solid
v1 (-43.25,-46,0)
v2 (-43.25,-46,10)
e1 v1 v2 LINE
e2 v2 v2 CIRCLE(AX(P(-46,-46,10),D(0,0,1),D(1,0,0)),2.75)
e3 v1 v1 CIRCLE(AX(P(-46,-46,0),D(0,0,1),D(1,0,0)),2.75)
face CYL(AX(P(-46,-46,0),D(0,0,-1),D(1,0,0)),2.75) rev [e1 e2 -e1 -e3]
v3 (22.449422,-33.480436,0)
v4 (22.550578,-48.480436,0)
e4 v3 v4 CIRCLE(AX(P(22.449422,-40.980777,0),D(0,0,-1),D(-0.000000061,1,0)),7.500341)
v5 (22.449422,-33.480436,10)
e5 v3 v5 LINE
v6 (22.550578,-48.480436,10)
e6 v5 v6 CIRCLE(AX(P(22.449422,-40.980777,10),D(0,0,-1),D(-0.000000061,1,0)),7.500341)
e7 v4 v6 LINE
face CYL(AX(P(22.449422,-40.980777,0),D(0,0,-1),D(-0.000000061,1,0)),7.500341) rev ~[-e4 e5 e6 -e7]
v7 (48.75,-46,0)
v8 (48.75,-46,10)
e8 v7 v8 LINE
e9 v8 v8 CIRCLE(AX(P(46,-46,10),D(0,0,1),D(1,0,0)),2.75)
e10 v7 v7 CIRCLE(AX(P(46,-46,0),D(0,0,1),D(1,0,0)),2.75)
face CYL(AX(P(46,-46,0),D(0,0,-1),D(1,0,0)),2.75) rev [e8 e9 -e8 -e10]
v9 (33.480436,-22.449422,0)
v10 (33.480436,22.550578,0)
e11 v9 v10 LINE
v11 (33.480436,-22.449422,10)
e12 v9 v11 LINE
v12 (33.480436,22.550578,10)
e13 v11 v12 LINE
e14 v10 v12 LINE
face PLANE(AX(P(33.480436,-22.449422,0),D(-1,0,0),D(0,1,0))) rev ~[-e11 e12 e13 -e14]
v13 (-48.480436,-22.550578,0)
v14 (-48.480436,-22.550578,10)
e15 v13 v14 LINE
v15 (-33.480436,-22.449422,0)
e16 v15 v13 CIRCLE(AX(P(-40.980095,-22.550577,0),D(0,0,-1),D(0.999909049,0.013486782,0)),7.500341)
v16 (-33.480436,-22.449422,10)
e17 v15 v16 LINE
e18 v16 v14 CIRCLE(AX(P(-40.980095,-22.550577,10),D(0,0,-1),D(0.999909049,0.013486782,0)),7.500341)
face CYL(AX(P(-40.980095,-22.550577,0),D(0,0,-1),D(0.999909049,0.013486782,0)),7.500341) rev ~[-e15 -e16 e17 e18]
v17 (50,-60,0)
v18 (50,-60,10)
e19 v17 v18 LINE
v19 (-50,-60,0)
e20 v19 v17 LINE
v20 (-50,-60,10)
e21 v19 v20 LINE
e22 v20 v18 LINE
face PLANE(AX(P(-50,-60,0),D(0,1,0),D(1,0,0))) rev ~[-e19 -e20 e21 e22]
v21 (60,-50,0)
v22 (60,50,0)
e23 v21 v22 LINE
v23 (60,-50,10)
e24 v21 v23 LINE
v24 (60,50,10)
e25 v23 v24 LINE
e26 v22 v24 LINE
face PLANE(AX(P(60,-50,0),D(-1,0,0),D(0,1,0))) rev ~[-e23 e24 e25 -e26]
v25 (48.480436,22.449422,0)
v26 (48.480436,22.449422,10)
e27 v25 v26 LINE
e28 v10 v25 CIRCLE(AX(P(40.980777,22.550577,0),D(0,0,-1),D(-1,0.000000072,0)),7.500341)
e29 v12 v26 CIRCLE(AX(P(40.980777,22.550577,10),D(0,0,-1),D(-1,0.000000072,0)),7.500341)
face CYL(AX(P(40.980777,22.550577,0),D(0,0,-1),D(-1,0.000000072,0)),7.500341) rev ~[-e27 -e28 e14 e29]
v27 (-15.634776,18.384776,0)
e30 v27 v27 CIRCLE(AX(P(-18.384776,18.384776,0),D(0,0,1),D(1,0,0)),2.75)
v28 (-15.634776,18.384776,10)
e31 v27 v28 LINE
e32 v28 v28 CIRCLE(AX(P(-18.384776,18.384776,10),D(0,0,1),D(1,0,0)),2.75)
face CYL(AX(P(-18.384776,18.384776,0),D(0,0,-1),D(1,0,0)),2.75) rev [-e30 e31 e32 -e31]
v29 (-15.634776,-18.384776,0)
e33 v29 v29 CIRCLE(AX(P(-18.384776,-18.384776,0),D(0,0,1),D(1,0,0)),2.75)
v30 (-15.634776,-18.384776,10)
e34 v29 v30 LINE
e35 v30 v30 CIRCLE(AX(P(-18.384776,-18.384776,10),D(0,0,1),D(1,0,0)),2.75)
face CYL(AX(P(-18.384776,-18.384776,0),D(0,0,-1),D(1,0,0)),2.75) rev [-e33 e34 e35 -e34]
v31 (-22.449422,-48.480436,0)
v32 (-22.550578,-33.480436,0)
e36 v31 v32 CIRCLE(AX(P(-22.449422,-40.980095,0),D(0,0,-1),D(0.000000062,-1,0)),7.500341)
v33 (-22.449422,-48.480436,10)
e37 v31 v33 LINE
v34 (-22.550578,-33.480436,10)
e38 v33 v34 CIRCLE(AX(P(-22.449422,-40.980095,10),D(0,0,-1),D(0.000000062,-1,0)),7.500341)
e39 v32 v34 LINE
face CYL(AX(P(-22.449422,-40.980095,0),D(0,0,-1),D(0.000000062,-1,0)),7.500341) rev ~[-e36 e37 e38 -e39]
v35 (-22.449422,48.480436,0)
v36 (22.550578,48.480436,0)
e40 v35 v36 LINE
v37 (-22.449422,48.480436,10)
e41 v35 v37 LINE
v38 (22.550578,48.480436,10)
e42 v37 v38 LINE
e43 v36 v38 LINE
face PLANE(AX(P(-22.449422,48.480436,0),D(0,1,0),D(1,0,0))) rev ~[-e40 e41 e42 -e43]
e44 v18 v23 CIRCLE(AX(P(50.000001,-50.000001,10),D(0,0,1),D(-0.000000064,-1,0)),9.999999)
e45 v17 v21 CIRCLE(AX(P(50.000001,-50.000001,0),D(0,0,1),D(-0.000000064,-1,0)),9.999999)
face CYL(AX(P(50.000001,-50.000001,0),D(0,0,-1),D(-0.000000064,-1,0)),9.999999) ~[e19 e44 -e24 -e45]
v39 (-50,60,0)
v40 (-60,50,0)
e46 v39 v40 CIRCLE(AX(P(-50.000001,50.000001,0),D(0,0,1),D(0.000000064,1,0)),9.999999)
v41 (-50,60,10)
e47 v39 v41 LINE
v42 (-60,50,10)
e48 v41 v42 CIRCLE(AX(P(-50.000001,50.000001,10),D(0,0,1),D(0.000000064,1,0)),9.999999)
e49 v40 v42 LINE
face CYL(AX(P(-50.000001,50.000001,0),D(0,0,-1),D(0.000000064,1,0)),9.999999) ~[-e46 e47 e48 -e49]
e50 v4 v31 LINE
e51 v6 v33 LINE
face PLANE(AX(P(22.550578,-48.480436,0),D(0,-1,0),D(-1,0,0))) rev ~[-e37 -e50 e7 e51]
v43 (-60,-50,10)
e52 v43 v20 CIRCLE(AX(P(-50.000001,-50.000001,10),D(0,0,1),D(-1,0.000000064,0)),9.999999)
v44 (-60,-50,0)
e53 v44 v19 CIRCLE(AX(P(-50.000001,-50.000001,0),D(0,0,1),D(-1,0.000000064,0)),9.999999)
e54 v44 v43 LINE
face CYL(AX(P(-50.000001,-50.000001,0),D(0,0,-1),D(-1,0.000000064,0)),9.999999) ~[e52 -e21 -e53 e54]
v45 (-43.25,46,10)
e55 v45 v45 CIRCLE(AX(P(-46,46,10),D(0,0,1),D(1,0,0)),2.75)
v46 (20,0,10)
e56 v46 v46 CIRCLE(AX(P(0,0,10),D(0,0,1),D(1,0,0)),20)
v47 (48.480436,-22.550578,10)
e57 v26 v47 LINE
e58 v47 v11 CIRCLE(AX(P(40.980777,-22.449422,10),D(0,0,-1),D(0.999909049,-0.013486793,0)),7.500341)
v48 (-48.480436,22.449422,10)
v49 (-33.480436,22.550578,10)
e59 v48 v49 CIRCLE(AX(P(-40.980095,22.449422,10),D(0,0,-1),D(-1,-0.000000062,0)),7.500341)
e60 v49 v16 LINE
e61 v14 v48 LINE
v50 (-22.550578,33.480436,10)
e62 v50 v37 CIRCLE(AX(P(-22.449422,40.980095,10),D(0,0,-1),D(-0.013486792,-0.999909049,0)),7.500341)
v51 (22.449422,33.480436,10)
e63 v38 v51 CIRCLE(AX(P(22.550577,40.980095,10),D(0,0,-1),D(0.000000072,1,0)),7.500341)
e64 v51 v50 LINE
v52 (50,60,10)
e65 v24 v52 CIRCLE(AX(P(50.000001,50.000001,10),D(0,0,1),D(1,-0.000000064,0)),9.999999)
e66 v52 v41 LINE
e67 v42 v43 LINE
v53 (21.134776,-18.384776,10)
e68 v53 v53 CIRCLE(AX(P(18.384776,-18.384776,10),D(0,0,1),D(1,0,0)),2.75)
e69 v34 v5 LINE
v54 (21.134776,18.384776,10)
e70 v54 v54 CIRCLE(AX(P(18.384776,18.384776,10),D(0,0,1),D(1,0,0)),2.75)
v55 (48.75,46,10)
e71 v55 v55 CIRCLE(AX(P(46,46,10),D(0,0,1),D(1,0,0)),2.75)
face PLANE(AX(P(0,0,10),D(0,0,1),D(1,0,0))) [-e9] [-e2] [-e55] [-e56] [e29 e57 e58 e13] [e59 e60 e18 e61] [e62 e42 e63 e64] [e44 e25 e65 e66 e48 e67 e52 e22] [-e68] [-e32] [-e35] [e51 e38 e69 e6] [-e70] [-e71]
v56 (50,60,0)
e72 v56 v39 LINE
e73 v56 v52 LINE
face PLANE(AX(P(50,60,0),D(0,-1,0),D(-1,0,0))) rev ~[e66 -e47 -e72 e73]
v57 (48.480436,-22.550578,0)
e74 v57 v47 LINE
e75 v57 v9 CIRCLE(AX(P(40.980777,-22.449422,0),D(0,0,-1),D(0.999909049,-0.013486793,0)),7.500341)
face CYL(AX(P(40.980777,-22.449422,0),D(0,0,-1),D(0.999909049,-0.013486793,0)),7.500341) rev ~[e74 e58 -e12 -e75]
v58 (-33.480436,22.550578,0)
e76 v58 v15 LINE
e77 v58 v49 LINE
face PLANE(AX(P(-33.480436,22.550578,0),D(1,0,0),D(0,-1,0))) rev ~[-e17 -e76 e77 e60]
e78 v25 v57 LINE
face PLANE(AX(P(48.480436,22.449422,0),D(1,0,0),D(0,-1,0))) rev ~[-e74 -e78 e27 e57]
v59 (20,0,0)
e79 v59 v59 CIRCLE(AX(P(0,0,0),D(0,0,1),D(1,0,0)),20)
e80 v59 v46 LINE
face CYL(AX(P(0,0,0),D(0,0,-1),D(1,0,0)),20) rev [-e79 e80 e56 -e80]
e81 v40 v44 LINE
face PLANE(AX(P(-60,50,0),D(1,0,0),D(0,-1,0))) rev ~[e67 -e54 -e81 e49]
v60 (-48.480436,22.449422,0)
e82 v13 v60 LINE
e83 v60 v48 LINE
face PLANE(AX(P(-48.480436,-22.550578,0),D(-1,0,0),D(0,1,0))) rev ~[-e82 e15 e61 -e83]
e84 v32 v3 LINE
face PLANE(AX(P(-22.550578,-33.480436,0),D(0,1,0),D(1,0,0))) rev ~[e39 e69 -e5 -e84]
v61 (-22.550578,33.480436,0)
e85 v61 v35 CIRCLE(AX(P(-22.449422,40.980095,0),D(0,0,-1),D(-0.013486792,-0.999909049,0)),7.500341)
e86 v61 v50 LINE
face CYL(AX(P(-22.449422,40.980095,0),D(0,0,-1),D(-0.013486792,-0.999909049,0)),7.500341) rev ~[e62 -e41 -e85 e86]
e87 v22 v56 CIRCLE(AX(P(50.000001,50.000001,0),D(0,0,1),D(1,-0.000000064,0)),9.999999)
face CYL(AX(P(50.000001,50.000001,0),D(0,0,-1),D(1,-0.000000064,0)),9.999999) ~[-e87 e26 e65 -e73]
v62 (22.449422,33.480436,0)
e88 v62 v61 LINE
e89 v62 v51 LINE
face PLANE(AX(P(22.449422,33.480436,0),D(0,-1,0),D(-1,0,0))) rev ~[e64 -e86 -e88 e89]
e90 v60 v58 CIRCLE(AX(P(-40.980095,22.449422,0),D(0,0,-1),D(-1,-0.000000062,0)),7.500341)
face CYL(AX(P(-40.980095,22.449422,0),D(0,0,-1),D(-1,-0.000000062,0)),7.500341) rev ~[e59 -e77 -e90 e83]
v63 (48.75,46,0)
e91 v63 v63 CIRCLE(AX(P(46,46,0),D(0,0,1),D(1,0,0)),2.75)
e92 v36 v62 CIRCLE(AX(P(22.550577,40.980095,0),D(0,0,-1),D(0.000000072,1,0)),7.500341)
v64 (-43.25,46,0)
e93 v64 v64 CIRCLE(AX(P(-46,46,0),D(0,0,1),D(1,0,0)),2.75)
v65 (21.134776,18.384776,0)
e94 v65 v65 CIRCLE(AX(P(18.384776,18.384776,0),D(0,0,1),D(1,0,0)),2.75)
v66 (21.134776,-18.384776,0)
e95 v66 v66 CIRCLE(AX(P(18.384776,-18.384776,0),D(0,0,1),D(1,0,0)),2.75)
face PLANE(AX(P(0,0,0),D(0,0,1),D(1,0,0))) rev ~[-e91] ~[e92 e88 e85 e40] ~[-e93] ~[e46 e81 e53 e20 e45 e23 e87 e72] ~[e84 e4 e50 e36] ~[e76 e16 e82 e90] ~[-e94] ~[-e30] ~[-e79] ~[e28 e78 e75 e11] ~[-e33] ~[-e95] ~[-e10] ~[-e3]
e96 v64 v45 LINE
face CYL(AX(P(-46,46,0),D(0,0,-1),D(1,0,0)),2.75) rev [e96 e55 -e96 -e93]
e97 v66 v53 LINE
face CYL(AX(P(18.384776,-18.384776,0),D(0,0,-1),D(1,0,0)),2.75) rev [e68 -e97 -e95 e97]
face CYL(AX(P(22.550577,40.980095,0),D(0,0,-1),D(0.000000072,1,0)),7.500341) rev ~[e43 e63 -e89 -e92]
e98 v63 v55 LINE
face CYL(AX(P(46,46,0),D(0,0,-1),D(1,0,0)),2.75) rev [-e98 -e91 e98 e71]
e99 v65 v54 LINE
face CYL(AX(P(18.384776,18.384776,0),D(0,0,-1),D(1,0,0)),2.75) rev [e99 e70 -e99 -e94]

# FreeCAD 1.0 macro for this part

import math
import FreeCAD as App
import Part
import Sketcher

V = App.Vector

doc = App.newDocument("Part")
body = doc.addObject("PartDesign::Body", "Body")

# Sketch on XY plane
sketch1 = doc.addObject("Sketcher::SketchObject", "Sketch")
body.addObject(sketch1)
sketch1.AttachmentSupport = (doc.XY_Plane, [""])
sketch1.MapMode = "FlatFace"
sketch1.addGeometry([
    Part.LineSegment(V(-50, -60, 0), V(50, -60, 0)),  # 0
    Part.ArcOfCircle(Part.Circle(V(50, -50, 0), V(0, 0, 1), 10), math.radians(-90), math.radians(0)),  # 1
    Part.LineSegment(V(60, -50, 0), V(60, 50, 0)),  # 2
    Part.ArcOfCircle(Part.Circle(V(50, 50, 0), V(0, 0, 1), 10), math.radians(0), math.radians(90)),  # 3
    Part.LineSegment(V(50, 60, 0), V(-50, 60, 0)),  # 4
    Part.ArcOfCircle(Part.Circle(V(-50, 50, 0), V(0, 0, 1), 10), math.radians(90), math.radians(180)),  # 5
    Part.LineSegment(V(-60, 50, 0), V(-60, -50, 0)),  # 6
    Part.ArcOfCircle(Part.Circle(V(-50, -50, 0), V(0, 0, 1), 10), math.radians(180), math.radians(270)),  # 7
    Part.Circle(V(-46, -46, 0), V(0, 0, 1), 2.8),  # 8
    Part.ArcOfCircle(Part.Circle(V(-22.4, -41, 0), V(0, 0, 1), 7.5), math.radians(91), math.radians(270)),  # 9
    Part.LineSegment(V(-22.6, -33.5, 0), V(22.4, -33.5, 0)),  # 10
    Part.ArcOfCircle(Part.Circle(V(22.4, -41, 0), V(0, 0, 1), 7.5), math.radians(-89), math.radians(90)),  # 11
    Part.LineSegment(V(22.6, -48.5, 0), V(-22.4, -48.5, 0)),  # 12
    Part.ArcOfCircle(Part.Circle(V(-41, 22.4, 0), V(0, 0, 1), 7.5), math.radians(1), math.radians(180)),  # 13
    Part.LineSegment(V(-33.5, 22.6, 0), V(-33.5, -22.4, 0)),  # 14
    Part.ArcOfCircle(Part.Circle(V(-41, -22.6, 0), V(0, 0, 1), 7.5), math.radians(-180), math.radians(1)),  # 15
    Part.LineSegment(V(-48.5, -22.6, 0), V(-48.5, 22.4, 0)),  # 16
    Part.Circle(V(-18.4, -18.4, 0), V(0, 0, 1), 2.8),  # 17
    Part.Circle(V(46, -46, 0), V(0, 0, 1), 2.8),  # 18
    Part.Circle(V(18.4, -18.4, 0), V(0, 0, 1), 2.8),  # 19
    Part.Circle(V(-18.4, 18.4, 0), V(0, 0, 1), 2.8),  # 20
    Part.Circle(V(-46, 46, 0), V(0, 0, 1), 2.8),  # 21
    Part.Circle(V(0, 0, 0), V(0, 0, 1), 20),  # 22
    Part.Circle(V(18.4, 18.4, 0), V(0, 0, 1), 2.8),  # 23
    Part.ArcOfCircle(Part.Circle(V(41, 22.6, 0), V(0, 0, 1), 7.5), math.radians(-1), math.radians(180)),  # 24
    Part.LineSegment(V(48.5, 22.4, 0), V(48.5, -22.6, 0)),  # 25
    Part.ArcOfCircle(Part.Circle(V(41, -22.4, 0), V(0, 0, 1), 7.5), math.radians(180), math.radians(359)),  # 26
    Part.LineSegment(V(33.5, -22.4, 0), V(33.5, 22.6, 0)),  # 27
    Part.LineSegment(V(-22.4, 48.5, 0), V(22.6, 48.5, 0)),  # 28
    Part.ArcOfCircle(Part.Circle(V(22.6, 41, 0), V(0, 0, 1), 7.5), math.radians(-91), math.radians(90)),  # 29
    Part.LineSegment(V(22.4, 33.5, 0), V(-22.6, 33.5, 0)),  # 30
    Part.ArcOfCircle(Part.Circle(V(-22.4, 41, 0), V(0, 0, 1), 7.5), math.radians(90), math.radians(269)),  # 31
    Part.Circle(V(46, 46, 0), V(0, 0, 1), 2.8),  # 32
], False)
sketch1.addConstraint([
    Sketcher.Constraint("Tangent", 0, 2, 1, 1),
    Sketcher.Constraint("Tangent", 1, 2, 2, 1),
    Sketcher.Constraint("Tangent", 2, 2, 3, 1),
    Sketcher.Constraint("Tangent", 3, 2, 4, 1),
    Sketcher.Constraint("Tangent", 4, 2, 5, 1),
    Sketcher.Constraint("Tangent", 5, 2, 6, 1),
    Sketcher.Constraint("Tangent", 6, 2, 7, 1),
    Sketcher.Constraint("Tangent", 7, 2, 0, 1),
    Sketcher.Constraint("Coincident", 9, 1, 10, 1),
    Sketcher.Constraint("Tangent", 10, 2, 11, 2),
    Sketcher.Constraint("Coincident", 11, 1, 12, 1),
    Sketcher.Constraint("Tangent", 12, 2, 9, 2),
    Sketcher.Constraint("Coincident", 13, 1, 14, 1),
    Sketcher.Constraint("Coincident", 14, 2, 15, 2),
    Sketcher.Constraint("Tangent", 15, 1, 16, 1),
    Sketcher.Constraint("Tangent", 16, 2, 13, 2),
    Sketcher.Constraint("Coincident", 24, 1, 25, 1),
    Sketcher.Constraint("Coincident", 25, 2, 26, 2),
    Sketcher.Constraint("Tangent", 26, 1, 27, 1),
    Sketcher.Constraint("Tangent", 27, 2, 24, 2),
    Sketcher.Constraint("Tangent", 28, 2, 29, 2),
    Sketcher.Constraint("Coincident", 29, 1, 30, 1),
    Sketcher.Constraint("Coincident", 30, 2, 31, 2),
    Sketcher.Constraint("Tangent", 31, 1, 28, 1),
    Sketcher.Constraint("Horizontal", 0),
    Sketcher.Constraint("Vertical", 2),
    Sketcher.Constraint("Horizontal", 4),
    Sketcher.Constraint("Vertical", 6),
    Sketcher.Constraint("Horizontal", 10),
    Sketcher.Constraint("Horizontal", 12),
    Sketcher.Constraint("Vertical", 14),
    Sketcher.Constraint("Vertical", 16),
    Sketcher.Constraint("Vertical", 25),
    Sketcher.Constraint("Vertical", 27),
    Sketcher.Constraint("Horizontal", 28),
    Sketcher.Constraint("Horizontal", 30),
    Sketcher.Constraint("Coincident", 22, 3, -1, 1),
    Sketcher.Constraint("Equal", 1, 3),
    Sketcher.Constraint("Equal", 3, 5),
    Sketcher.Constraint("Equal", 5, 7),
    Sketcher.Constraint("Equal", 9, 11),
    Sketcher.Constraint("Equal", 11, 13),
    Sketcher.Constraint("Equal", 13, 15),
    Sketcher.Constraint("Equal", 8, 17),
    Sketcher.Constraint("Equal", 17, 18),
    Sketcher.Constraint("Equal", 18, 19),
    Sketcher.Constraint("Equal", 19, 20),
    Sketcher.Constraint("Equal", 20, 21),
    Sketcher.Constraint("Equal", 21, 23),
    Sketcher.Constraint("Equal", 15, 24),
    Sketcher.Constraint("Equal", 24, 26),
    Sketcher.Constraint("Equal", 26, 29),
    Sketcher.Constraint("Equal", 29, 31),
    Sketcher.Constraint("Equal", 23, 32),
    Sketcher.Constraint("Symmetric", 1, 3, 5, 3, -1, 1),
    Sketcher.Constraint("Symmetric", 19, 3, 20, 3, -1, 1),
    Sketcher.Constraint("Symmetric", 18, 3, 21, 3, -1, 1),
    Sketcher.Constraint("Symmetric", 17, 3, 23, 3, -1, 1),
    Sketcher.Constraint("Symmetric", 8, 3, 32, 3, -1, 1),
    Sketcher.Constraint("Symmetric", 8, 3, 18, 3, -2),
    Sketcher.Constraint("Symmetric", 17, 3, 19, 3, -2),
    Sketcher.Constraint("Symmetric", 16, 2, 24, 1, -2),
    Sketcher.Constraint("Symmetric", 14, 2, 26, 1, -2),
    Sketcher.Constraint("Symmetric", 9, 3, 31, 3, -1),
    Sketcher.Constraint("Symmetric", 10, 2, 29, 1, -1),
    Sketcher.Constraint("Equal", 4, 2),
    Sketcher.Constraint("Equal", 30, 14),
    Sketcher.Constraint("Diameter", 22, 40.0),
    Sketcher.Constraint("Radius", 1, 9.999999),
    Sketcher.Constraint("Diameter", 8, 5.5),
    Sketcher.Constraint("DistanceX", 0, 1, 0, 2, 100.0),
    Sketcher.Constraint("DistanceX", 10, 1, 10, 2, 45.0),
    Sketcher.Constraint("DistanceX", 8, 3, -1, 1, 46.0),
    Sketcher.Constraint("DistanceY", 8, 3, -1, 1, 46.0),
    Sketcher.Constraint("DistanceY", 11, 1, 10, 2, 15.0),
    Sketcher.Constraint("DistanceX", 15, 1, 14, 2, 15.0),
    Sketcher.Constraint("Radius", 9, 7.500341),
    Sketcher.Constraint("DistanceY", 11, 3, 19, 3, 22.596001),
    Sketcher.Constraint("DistanceX", 23, 3, 24, 3, 22.596001),
    Sketcher.Constraint("DistanceY", 11, 3, 13, 3, 63.4302),
    Sketcher.Constraint("DistanceX", 9, 3, 19, 3, 40.834198),
    Sketcher.Constraint("DistanceY", 23, 3, 24, 3, 4.165801),
    Sketcher.Constraint("DistanceX", 9, 1, 17, 3, 4.165802),
])
pad1 = doc.addObject("PartDesign::Pad", "Pad")
body.addObject(pad1)
pad1.Profile = sketch1
pad1.Length = 10

doc.recompute()
